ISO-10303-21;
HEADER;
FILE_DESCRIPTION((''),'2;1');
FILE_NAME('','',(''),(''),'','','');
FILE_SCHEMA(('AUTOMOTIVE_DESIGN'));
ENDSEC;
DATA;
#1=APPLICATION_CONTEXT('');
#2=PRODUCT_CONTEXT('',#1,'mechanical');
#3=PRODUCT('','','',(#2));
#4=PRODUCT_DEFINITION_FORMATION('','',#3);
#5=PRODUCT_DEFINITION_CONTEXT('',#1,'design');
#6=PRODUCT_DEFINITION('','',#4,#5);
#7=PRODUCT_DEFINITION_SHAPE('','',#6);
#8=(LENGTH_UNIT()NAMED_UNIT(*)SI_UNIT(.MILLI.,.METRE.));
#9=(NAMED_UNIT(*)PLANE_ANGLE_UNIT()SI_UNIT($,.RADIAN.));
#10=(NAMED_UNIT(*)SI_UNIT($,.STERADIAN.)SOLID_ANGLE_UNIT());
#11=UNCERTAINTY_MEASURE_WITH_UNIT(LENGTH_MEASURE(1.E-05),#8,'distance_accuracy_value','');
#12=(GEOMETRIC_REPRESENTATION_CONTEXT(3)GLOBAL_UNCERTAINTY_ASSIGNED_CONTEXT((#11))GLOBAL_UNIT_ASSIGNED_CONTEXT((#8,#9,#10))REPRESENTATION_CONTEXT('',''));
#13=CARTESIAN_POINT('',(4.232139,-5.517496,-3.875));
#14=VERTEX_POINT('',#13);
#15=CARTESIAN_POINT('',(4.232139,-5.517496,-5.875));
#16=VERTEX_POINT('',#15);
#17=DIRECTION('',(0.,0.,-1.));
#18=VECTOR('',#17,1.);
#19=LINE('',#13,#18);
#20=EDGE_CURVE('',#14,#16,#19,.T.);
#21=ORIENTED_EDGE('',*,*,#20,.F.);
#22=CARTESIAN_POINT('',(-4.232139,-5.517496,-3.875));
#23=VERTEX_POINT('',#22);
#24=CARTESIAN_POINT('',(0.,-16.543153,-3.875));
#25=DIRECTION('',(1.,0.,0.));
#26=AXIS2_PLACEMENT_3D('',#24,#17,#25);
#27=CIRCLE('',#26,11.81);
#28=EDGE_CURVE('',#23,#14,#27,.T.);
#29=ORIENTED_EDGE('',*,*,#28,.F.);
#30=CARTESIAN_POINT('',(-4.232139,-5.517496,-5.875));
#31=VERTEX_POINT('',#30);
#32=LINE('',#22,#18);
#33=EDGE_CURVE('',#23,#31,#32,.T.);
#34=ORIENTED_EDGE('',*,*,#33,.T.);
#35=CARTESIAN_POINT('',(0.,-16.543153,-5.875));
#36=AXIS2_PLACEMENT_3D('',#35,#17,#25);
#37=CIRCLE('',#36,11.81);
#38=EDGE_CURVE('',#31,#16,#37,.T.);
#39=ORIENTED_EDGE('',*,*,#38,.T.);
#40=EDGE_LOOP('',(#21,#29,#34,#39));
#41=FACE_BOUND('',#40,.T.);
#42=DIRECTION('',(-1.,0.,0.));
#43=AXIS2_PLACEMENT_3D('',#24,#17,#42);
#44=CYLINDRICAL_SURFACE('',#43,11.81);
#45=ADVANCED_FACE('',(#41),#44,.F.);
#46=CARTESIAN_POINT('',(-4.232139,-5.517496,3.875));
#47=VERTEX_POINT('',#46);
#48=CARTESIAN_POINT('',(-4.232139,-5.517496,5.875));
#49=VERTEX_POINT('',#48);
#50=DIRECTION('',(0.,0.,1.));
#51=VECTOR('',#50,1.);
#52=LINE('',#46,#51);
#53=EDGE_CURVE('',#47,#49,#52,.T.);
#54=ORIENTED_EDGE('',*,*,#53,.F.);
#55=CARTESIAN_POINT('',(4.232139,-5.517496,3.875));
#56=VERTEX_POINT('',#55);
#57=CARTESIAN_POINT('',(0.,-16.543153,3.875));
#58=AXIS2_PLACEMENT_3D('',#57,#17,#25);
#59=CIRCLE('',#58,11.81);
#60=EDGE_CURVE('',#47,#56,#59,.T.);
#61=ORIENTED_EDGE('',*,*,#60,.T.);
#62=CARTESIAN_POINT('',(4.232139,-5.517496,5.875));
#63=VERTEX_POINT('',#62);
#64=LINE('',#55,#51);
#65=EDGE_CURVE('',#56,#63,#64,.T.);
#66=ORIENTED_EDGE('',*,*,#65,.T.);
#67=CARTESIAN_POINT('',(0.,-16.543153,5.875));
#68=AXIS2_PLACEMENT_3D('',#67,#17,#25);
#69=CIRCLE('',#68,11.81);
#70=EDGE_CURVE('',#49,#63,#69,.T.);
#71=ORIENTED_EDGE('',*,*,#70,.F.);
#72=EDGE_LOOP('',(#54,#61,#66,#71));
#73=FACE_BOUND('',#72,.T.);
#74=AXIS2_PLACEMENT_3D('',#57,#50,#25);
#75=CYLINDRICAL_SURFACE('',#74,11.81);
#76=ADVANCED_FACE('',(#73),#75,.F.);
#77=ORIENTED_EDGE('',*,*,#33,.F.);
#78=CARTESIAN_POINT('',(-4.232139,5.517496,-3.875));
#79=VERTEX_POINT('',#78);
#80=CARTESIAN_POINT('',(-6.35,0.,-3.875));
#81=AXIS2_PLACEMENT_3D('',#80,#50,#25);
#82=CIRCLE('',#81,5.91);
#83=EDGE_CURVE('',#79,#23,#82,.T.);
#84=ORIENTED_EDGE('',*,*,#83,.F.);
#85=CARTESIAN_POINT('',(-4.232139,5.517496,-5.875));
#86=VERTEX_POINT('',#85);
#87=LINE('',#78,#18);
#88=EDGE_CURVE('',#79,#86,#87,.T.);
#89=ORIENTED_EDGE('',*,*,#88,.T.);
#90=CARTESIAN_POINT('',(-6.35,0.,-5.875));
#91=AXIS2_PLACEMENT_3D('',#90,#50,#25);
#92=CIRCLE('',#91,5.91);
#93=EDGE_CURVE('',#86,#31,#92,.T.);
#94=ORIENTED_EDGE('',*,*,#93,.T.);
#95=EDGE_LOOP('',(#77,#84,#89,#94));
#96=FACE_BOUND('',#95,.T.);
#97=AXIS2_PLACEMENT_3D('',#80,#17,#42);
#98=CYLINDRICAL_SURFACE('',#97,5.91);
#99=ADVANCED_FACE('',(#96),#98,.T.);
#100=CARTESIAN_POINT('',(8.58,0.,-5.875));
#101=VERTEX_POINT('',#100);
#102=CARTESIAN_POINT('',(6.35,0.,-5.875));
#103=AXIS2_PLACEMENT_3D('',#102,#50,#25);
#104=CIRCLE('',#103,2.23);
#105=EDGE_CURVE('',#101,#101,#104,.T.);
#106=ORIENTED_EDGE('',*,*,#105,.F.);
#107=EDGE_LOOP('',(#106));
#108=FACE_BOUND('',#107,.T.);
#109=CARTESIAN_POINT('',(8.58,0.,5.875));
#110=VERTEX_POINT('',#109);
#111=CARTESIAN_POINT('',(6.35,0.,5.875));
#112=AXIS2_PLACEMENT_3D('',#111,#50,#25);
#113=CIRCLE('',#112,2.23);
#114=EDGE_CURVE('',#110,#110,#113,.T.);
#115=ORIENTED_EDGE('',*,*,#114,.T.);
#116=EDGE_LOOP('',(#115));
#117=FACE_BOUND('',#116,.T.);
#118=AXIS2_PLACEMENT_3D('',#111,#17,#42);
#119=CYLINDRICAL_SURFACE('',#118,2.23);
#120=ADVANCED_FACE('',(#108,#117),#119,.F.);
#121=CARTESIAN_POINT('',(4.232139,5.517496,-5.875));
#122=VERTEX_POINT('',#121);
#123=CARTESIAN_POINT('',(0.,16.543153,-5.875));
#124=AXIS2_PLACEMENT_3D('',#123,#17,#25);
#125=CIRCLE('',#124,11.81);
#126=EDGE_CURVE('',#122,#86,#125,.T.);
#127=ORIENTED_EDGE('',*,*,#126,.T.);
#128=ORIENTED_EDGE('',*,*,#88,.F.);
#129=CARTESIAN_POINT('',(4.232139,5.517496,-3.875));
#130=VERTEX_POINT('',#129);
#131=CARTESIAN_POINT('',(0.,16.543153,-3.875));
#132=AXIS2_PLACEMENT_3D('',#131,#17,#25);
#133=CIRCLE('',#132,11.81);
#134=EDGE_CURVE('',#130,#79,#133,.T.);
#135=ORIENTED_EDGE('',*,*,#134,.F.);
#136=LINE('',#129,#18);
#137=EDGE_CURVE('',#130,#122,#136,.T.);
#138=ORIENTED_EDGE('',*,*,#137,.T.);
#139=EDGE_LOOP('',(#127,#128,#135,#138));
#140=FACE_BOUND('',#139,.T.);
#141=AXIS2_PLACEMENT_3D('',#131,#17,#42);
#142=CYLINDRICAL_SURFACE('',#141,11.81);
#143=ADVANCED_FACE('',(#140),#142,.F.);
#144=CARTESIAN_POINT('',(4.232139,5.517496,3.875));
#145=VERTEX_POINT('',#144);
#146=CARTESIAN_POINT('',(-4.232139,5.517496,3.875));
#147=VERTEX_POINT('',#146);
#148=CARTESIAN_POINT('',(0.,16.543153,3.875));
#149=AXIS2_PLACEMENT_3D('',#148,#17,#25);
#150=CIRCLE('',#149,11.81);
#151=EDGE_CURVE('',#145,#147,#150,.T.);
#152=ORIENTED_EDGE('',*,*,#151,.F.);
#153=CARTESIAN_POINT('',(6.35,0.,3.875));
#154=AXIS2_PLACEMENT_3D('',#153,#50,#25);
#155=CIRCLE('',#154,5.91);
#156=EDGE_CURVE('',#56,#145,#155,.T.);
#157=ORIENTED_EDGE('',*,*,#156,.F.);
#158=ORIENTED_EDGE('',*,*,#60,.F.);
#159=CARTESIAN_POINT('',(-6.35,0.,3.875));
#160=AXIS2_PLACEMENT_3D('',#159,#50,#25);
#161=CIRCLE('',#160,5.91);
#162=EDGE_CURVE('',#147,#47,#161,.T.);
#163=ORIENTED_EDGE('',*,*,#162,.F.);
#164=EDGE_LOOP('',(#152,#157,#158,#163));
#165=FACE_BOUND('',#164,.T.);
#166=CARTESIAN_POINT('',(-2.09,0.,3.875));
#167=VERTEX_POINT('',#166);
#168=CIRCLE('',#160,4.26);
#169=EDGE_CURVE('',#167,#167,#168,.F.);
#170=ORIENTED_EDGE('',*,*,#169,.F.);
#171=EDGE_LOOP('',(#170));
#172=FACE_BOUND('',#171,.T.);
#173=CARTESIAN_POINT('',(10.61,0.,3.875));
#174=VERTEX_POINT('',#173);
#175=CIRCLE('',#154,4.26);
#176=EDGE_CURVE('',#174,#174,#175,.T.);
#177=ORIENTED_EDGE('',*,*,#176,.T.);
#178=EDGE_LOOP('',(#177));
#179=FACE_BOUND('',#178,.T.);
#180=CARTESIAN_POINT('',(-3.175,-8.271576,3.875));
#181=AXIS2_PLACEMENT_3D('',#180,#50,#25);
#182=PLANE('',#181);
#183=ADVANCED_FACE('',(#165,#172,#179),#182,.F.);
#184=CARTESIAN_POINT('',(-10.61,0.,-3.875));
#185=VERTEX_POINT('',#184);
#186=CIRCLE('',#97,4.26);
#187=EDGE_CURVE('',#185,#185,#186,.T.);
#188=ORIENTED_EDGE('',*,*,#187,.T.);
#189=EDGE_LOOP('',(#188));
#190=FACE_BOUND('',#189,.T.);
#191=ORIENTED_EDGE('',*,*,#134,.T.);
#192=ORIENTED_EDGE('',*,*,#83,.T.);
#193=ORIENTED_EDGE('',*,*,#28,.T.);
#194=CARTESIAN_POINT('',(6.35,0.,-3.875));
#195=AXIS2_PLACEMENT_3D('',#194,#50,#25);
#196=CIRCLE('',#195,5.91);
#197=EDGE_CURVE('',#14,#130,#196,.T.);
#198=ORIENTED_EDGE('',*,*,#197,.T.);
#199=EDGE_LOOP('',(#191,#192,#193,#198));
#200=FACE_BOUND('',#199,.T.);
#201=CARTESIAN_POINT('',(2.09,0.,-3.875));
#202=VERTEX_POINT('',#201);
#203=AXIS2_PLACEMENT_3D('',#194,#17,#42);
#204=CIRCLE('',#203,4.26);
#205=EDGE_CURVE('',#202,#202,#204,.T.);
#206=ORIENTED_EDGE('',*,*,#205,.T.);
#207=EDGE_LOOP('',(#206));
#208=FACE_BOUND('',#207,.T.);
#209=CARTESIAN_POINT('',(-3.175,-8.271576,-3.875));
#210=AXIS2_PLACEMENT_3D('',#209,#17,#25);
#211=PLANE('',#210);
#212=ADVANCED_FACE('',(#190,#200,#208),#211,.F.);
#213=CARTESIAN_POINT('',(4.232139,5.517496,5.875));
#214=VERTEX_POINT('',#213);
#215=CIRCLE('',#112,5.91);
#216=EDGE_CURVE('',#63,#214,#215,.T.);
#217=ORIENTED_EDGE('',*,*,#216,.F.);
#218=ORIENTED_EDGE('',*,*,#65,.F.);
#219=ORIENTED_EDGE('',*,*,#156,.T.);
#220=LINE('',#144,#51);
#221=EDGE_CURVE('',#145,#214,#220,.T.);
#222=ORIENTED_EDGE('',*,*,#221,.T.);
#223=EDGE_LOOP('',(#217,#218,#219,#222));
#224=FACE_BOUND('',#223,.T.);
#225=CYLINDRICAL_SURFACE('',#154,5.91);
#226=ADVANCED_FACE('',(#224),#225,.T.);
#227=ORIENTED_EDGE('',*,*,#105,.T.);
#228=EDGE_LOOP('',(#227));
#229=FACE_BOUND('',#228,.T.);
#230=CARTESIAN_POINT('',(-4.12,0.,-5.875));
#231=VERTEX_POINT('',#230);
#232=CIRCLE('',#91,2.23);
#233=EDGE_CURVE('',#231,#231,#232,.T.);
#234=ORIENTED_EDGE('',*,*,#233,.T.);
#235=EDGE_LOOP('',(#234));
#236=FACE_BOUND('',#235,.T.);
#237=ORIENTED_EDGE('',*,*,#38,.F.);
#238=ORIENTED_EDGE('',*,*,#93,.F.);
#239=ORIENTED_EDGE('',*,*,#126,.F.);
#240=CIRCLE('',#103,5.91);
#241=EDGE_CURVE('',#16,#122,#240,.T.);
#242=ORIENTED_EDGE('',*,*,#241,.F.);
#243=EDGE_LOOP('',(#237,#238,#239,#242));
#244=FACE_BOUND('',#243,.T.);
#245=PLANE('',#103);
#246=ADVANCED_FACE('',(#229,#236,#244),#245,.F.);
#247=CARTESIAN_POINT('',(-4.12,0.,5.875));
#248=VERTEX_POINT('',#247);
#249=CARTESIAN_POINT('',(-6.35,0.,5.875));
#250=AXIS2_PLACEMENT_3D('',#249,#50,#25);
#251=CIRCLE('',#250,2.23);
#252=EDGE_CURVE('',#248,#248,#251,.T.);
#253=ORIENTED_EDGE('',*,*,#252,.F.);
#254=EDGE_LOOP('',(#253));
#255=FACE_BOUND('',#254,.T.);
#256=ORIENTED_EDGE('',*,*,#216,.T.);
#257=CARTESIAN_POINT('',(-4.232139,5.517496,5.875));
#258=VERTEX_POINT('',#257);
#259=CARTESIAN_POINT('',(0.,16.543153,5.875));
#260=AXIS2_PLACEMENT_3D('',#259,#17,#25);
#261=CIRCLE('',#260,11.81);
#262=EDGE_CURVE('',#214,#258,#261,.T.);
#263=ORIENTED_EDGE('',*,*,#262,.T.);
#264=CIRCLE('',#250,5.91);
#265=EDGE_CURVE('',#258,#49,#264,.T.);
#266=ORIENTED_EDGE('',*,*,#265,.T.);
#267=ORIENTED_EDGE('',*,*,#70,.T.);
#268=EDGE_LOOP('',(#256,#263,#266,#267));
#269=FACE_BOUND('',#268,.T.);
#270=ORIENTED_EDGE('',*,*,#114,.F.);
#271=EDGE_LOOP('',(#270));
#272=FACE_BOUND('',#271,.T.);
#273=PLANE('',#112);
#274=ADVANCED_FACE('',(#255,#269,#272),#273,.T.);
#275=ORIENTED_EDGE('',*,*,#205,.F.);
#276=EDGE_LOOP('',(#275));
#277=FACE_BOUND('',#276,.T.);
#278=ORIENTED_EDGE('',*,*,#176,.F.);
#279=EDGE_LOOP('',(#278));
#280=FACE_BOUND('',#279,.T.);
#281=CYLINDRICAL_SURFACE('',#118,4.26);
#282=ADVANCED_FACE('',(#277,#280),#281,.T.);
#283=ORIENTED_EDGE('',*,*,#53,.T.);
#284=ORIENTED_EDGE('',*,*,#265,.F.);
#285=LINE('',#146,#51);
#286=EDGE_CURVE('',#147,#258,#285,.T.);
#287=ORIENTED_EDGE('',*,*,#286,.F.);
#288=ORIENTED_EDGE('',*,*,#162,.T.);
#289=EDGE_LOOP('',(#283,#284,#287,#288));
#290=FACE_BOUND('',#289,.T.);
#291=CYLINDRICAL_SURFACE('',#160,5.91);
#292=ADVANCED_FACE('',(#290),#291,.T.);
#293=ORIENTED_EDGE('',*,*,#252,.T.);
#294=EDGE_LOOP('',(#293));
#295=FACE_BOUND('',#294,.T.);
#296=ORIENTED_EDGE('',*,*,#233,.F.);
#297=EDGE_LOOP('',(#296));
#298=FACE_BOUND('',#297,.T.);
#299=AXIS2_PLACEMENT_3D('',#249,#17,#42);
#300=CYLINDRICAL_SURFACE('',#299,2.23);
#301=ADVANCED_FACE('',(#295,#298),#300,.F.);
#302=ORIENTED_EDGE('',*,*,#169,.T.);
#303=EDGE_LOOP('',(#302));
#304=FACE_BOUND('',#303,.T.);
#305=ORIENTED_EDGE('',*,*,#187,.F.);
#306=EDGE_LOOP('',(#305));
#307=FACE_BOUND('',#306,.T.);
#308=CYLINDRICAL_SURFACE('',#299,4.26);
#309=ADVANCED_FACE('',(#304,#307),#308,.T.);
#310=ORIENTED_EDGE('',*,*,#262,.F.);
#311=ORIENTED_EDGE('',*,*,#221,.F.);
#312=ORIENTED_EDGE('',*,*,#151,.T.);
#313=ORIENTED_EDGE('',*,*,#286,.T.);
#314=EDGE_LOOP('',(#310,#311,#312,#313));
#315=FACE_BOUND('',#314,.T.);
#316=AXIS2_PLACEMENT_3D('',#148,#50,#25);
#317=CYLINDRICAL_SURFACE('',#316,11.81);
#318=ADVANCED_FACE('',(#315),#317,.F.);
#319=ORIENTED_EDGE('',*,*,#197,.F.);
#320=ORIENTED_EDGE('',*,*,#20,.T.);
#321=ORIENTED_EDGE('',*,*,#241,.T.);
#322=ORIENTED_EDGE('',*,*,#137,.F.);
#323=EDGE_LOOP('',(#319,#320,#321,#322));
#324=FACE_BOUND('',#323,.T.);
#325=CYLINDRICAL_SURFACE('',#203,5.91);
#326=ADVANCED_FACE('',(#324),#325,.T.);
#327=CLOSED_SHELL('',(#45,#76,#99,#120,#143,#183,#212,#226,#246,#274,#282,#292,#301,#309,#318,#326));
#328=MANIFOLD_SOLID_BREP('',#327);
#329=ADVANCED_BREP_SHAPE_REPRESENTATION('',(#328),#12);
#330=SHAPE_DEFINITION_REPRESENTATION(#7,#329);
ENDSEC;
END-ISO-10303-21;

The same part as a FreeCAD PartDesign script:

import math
import FreeCAD as App
import Part
import Sketcher
from FreeCAD import Vector
Q = App.Units.Quantity

doc = App.newDocument("Part")
params = doc.addObject("Spreadsheet::Sheet", "Params")
for row, (alias, value) in enumerate([
    ("sketch1_diameter", "8.52 mm"),
    ("sketch1_diameter2", "4.46 mm"),
    ("pad1_length", "11.75 mm"),
    ("sketch2_diameter", "8.52 mm"),
    ("sketch2_diameter2", "4.46 mm"),
    ("pad2_length", "11.75 mm"),
    ("sketch3_diameter", "6 mm"),
    ("sketch3_radius", "5.91 mm"),
    ("sketch3_radius2", "11.81 mm"),
    ("pad3_length", "2 mm"),
], start=1):
    params.set(f"A{row}", alias)
    params.set(f"B{row}", "=" + value)
    params.setAlias(f"B{row}", alias)

body = doc.addObject("PartDesign::Body", "Body")

# Sketch on XY plane
sketch1 = body.newObject("Sketcher::SketchObject", "Sketch")
sketch1.AttachmentSupport = (doc.getObject("XY_Plane"), [""])
sketch1.MapMode = "FlatFace"
sketch1.addGeometry([
    Part.Circle(Vector(-6.3, 0, 0), Vector(0, 0, 1), 4.3),
    Part.Circle(Vector(-6.3, 0, 0), Vector(0, 0, 1), 2.2),
], False)
sketch1.addConstraint([
    Sketcher.Constraint("Coincident", 1, 3, 0, 3),
    Sketcher.Constraint("PointOnObject", 0, 3, -1),
    Sketcher.Constraint("Diameter", 0, Q("8.52 mm")),
    Sketcher.Constraint("Diameter", 1, Q("4.46 mm")),
    Sketcher.Constraint("DistanceX", 0, 3, -1, 1, Q("6.35 mm")),
])
sketch1.setExpression("Constraints[2]", "Params.sketch1_diameter")
sketch1.setExpression("Constraints[3]", "Params.sketch1_diameter2")
pad1 = body.newObject("PartDesign::Pad", "Pad")
pad1.Profile = sketch1
pad1.setExpression("Length", "Params.pad1_length")
pad1.Midplane = True
body2 = doc.addObject("PartDesign::Body", "Body001")

# Sketch on XY plane
sketch2 = body2.newObject("Sketcher::SketchObject", "Sketch001")
sketch2.AttachmentSupport = (doc.getObject("XY_Plane001"), [""])
sketch2.MapMode = "FlatFace"
sketch2.addGeometry([
    Part.Circle(Vector(6.3, 0, 0), Vector(0, 0, 1), 4.3),
    Part.Circle(Vector(6.3, 0, 0), Vector(0, 0, 1), 2.2),
], False)
sketch2.addConstraint([
    Sketcher.Constraint("Coincident", 1, 3, 0, 3),
    Sketcher.Constraint("PointOnObject", 0, 3, -1),
    Sketcher.Constraint("Diameter", 0, Q("8.52 mm")),
    Sketcher.Constraint("Diameter", 1, Q("4.46 mm")),
    Sketcher.Constraint("DistanceX", -1, 1, 0, 3, Q("6.35 mm")),
])
sketch2.setExpression("Constraints[2]", "Params.sketch2_diameter")
sketch2.setExpression("Constraints[3]", "Params.sketch2_diameter2")
pad2 = body2.newObject("PartDesign::Pad", "Pad001")
pad2.Profile = sketch2
pad2.setExpression("Length", "Params.pad2_length")
pad2.Midplane = True
body.AllowCompound = True
doc.recompute()

boolean = body.newObject("PartDesign::Boolean", "Boolean")
boolean.Type = "Fuse"
boolean.addObjects([body2])

# Sketch on XY plane
sketch3 = body.newObject("Sketcher::SketchObject", "Sketch002")
sketch3.AttachmentSupport = (doc.getObject("XY_Plane"), [""])
sketch3.MapMode = "FlatFace"
sketch3.AttachmentOffset = App.Placement(Vector(0, 0, 5.875), App.Rotation())
sketch3.addGeometry([
    Part.ArcOfCircle(Part.Circle(Vector(-6.3, 0, 0), Vector(0, 0, 1), 5.9), math.radians(69), math.radians(291)),  # 0
    Part.ArcOfCircle(Part.Circle(Vector(0, -16.5, 0), Vector(0, 0, 1), 11.8), math.radians(69), math.radians(111)),  # 1
    Part.ArcOfCircle(Part.Circle(Vector(6.3, 0, 0), Vector(0, 0, 1), 5.9), math.radians(-111), math.radians(111)),  # 2
    Part.ArcOfCircle(Part.Circle(Vector(0, 16.5, 0), Vector(0, 0, 1), 11.8), math.radians(-111), math.radians(-69)),  # 3
    Part.Circle(Vector(-6.3, 0, 0), Vector(0, 0, 1), 3),  # 4
    Part.Circle(Vector(6.3, 0, 0), Vector(0, 0, 1), 3),  # 5
], False)
sketch3.addConstraint([
    Sketcher.Constraint("Tangent", 0, 2, 1, 2),
    Sketcher.Constraint("Tangent", 1, 1, 2, 1),
    Sketcher.Constraint("Tangent", 2, 2, 3, 2),
    Sketcher.Constraint("Tangent", 3, 1, 0, 1),
    Sketcher.Constraint("Coincident", 4, 3, 0, 3),
    Sketcher.Constraint("Coincident", 5, 3, 2, 3),
    Sketcher.Constraint("Equal", 0, 2),
    Sketcher.Constraint("Equal", 1, 3),
    Sketcher.Constraint("Equal", 4, 5),
    Sketcher.Constraint("Symmetric", 0, 3, 2, 3, -1, 1),
    Sketcher.Constraint("PointOnObject", 0, 3, -1),
    Sketcher.Constraint("Diameter", 4, Q("6 mm")),
    Sketcher.Constraint("Radius", 0, Q("5.91 mm")),
    Sketcher.Constraint("Radius", 1, Q("11.81 mm")),
    Sketcher.Constraint("DistanceX", 0, 3, 2, 3, Q("12.7 mm")),
])
sketch3.setExpression("Constraints[11]", "Params.sketch3_diameter")
sketch3.setExpression("Constraints[12]", "Params.sketch3_radius")
sketch3.setExpression("Constraints[13]", "Params.sketch3_radius2")
pad3 = body.newObject("PartDesign::Pad", "Pad002")
pad3.Profile = sketch3
pad3.setExpression("Length", "Params.pad3_length")
pad3.Reversed = True
doc.recompute()

mirrored = body.newObject("PartDesign::Mirrored", "Mirrored")
mirrored.Originals = [pad3]
mirrored.MirrorPlane = (doc.getObject("XY_Plane"), [""])
body.Tip = mirrored

doc.recompute()
